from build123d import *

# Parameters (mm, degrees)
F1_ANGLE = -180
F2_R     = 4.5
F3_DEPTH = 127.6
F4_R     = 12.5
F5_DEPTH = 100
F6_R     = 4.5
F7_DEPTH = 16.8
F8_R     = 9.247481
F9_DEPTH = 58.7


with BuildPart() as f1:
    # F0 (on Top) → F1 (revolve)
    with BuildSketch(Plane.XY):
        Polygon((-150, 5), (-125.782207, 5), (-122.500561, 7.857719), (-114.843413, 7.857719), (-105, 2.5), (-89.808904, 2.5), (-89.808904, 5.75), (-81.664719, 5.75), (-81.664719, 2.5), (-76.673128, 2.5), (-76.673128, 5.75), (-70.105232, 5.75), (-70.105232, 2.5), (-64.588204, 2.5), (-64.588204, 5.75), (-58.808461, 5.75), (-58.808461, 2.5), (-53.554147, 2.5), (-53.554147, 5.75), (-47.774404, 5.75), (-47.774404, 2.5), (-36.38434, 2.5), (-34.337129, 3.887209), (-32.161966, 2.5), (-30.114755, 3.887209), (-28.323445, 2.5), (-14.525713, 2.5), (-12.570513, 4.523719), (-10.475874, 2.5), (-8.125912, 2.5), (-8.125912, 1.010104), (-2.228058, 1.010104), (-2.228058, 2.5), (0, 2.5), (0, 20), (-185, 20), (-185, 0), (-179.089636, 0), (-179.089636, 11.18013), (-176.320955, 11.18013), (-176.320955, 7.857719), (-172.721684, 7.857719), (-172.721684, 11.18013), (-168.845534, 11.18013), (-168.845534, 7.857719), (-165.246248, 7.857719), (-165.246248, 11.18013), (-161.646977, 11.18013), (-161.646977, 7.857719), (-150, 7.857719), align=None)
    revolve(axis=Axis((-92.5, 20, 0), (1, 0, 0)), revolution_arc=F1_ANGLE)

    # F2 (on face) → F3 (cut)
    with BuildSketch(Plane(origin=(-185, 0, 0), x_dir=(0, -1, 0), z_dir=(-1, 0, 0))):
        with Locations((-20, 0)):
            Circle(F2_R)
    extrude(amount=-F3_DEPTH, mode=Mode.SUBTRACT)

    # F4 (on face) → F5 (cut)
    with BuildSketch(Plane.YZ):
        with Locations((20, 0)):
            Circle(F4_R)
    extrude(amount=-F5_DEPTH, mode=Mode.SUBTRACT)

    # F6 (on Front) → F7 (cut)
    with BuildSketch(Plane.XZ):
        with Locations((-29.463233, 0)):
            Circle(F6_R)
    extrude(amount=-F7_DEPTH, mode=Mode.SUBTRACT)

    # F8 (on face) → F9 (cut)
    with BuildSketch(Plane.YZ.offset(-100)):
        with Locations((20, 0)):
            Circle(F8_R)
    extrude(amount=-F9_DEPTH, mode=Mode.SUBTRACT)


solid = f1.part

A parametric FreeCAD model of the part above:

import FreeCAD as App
import Part
import Sketcher
from FreeCAD import Vector
Q = App.Units.Quantity


def add_polygon(sketch, points):
    """Adds a closed chain of lines whose ends are joined by coincident constraints."""
    first, n = sketch.GeometryCount, len(points)
    for a, b in zip(points, points[1:] + points[:1]):
        sketch.addGeometry(Part.LineSegment(App.Vector(*a, 0), App.Vector(*b, 0)), False)
    for i in range(n):
        sketch.addConstraint(Sketcher.Constraint("Coincident", first + i, 2, first + (i + 1) % n, 1))

doc = App.newDocument("Part")
body = doc.addObject("PartDesign::Body", "Body")

# Sketch on XY plane
sketch1 = body.newObject("Sketcher::SketchObject", "Sketch")
sketch1.AttachmentSupport = (doc.getObject("XY_Plane"), [""])
sketch1.MapMode = "FlatFace"
add_polygon(sketch1, [(-150, 5), (-125.782207, 5), (-122.500561, 7.857719), (-114.843413, 7.857719), (-105, 2.5), (-89.808904, 2.5), (-89.808904, 5.75), (-81.664719, 5.75), (-81.664719, 2.5), (-76.673128, 2.5), (-76.673128, 5.75), (-70.105232, 5.75), (-70.105232, 2.5), (-64.588204, 2.5), (-64.588204, 5.75), (-58.808461, 5.75), (-58.808461, 2.5), (-53.554147, 2.5), (-53.554147, 5.75), (-47.774404, 5.75), (-47.774404, 2.5), (-36.38434, 2.5), (-34.337129, 3.887209), (-32.161966, 2.5), (-30.114755, 3.887209), (-28.323445, 2.5), (-14.525713, 2.5), (-12.570513, 4.523719), (-10.475874, 2.5), (-8.125912, 2.5), (-8.125912, 1.010104), (-2.228058, 1.010104), (-2.228058, 2.5), (0, 2.5), (0, 20), (-185, 20), (-185, 0), (-179.089636, 0), (-179.089636, 11.18013), (-176.320955, 11.18013), (-176.320955, 7.857719), (-172.721684, 7.857719), (-172.721684, 11.18013), (-168.845534, 11.18013), (-168.845534, 7.857719), (-165.246248, 7.857719), (-165.246248, 11.18013), (-161.646977, 11.18013), (-161.646977, 7.857719), (-150, 7.857719)])  # lines 0-49
sketch1.addGeometry(Part.LineSegment(Vector(-185, 20, 0), Vector(0, 20, 0)), True)  # axis
sketch1.addConstraint(Sketcher.Constraint("Horizontal", 0))
sketch1.addConstraint(Sketcher.Constraint("Horizontal", 2))
sketch1.addConstraint(Sketcher.Constraint("Horizontal", 4))
sketch1.addConstraint(Sketcher.Constraint("Vertical", 5))
sketch1.addConstraint(Sketcher.Constraint("Horizontal", 6))
sketch1.addConstraint(Sketcher.Constraint("Vertical", 7))
sketch1.addConstraint(Sketcher.Constraint("Horizontal", 8))
sketch1.addConstraint(Sketcher.Constraint("Vertical", 9))
sketch1.addConstraint(Sketcher.Constraint("Horizontal", 10))
sketch1.addConstraint(Sketcher.Constraint("Vertical", 11))
sketch1.addConstraint(Sketcher.Constraint("Horizontal", 12))
sketch1.addConstraint(Sketcher.Constraint("Vertical", 13))
sketch1.addConstraint(Sketcher.Constraint("Horizontal", 14))
sketch1.addConstraint(Sketcher.Constraint("Vertical", 15))
sketch1.addConstraint(Sketcher.Constraint("Horizontal", 16))
sketch1.addConstraint(Sketcher.Constraint("Vertical", 17))
sketch1.addConstraint(Sketcher.Constraint("Horizontal", 18))
sketch1.addConstraint(Sketcher.Constraint("Vertical", 19))
sketch1.addConstraint(Sketcher.Constraint("Horizontal", 20))
sketch1.addConstraint(Sketcher.Constraint("Horizontal", 25))
sketch1.addConstraint(Sketcher.Constraint("Horizontal", 28))
sketch1.addConstraint(Sketcher.Constraint("Vertical", 29))
sketch1.addConstraint(Sketcher.Constraint("Horizontal", 30))
sketch1.addConstraint(Sketcher.Constraint("Vertical", 31))
sketch1.addConstraint(Sketcher.Constraint("Horizontal", 32))
sketch1.addConstraint(Sketcher.Constraint("Vertical", 33))
sketch1.addConstraint(Sketcher.Constraint("Horizontal", 34))
sketch1.addConstraint(Sketcher.Constraint("Vertical", 35))
sketch1.addConstraint(Sketcher.Constraint("Horizontal", 36))
sketch1.addConstraint(Sketcher.Constraint("Vertical", 37))
sketch1.addConstraint(Sketcher.Constraint("Horizontal", 38))
sketch1.addConstraint(Sketcher.Constraint("Vertical", 39))
sketch1.addConstraint(Sketcher.Constraint("Horizontal", 40))
sketch1.addConstraint(Sketcher.Constraint("Vertical", 41))
sketch1.addConstraint(Sketcher.Constraint("Horizontal", 42))
sketch1.addConstraint(Sketcher.Constraint("Vertical", 43))
sketch1.addConstraint(Sketcher.Constraint("Horizontal", 44))
sketch1.addConstraint(Sketcher.Constraint("Vertical", 45))
sketch1.addConstraint(Sketcher.Constraint("Horizontal", 46))
sketch1.addConstraint(Sketcher.Constraint("Vertical", 47))
sketch1.addConstraint(Sketcher.Constraint("Horizontal", 48))
sketch1.addConstraint(Sketcher.Constraint("Vertical", 49))
sketch1.addConstraint(Sketcher.Constraint("Horizontal", 50))
sketch1.addConstraint(Sketcher.Constraint("Coincident", 50, 1, 34, 2))
sketch1.addConstraint(Sketcher.Constraint("PointOnObject", 32, 2, -2))
sketch1.addConstraint(Sketcher.Constraint("PointOnObject", 35, 2, -1))
sketch1.addConstraint(Sketcher.Constraint("PointOnObject", 50, 2, -2))
sketch1.addConstraint(Sketcher.Constraint("Parallel", 21, 23))
sketch1.addConstraint(Sketcher.Constraint("Perpendicular", 26, 27))
sketch1.addConstraint(Sketcher.Constraint("Horizontal", 4, 2, 7, 2))
sketch1.addConstraint(Sketcher.Constraint("Horizontal", 6, 2, 9, 2))
sketch1.addConstraint(Sketcher.Constraint("Horizontal", 8, 2, 11, 2))
sketch1.addConstraint(Sketcher.Constraint("Horizontal", 10, 2, 13, 2))
sketch1.addConstraint(Sketcher.Constraint("Horizontal", 12, 2, 15, 2))
sketch1.addConstraint(Sketcher.Constraint("Horizontal", 14, 2, 17, 2))
sketch1.addConstraint(Sketcher.Constraint("Horizontal", 16, 2, 19, 2))
sketch1.addConstraint(Sketcher.Constraint("Horizontal", 20, 2, 22, 2))
sketch1.addConstraint(Sketcher.Constraint("Horizontal", 21, 2, 23, 2))
sketch1.addConstraint(Sketcher.Constraint("Horizontal", 22, 2, 24, 2))
sketch1.addConstraint(Sketcher.Constraint("Horizontal", 25, 2, 27, 2))
sketch1.addConstraint(Sketcher.Constraint("Horizontal", 28, 2, 31, 2))
sketch1.addConstraint(Sketcher.Constraint("Horizontal", 2, 2, 39, 2))
sketch1.addConstraint(Sketcher.Constraint("Horizontal", 38, 2, 41, 2))
sketch1.addConstraint(Sketcher.Constraint("Horizontal", 40, 2, 43, 2))
sketch1.addConstraint(Sketcher.Constraint("Horizontal", 42, 2, 45, 2))
sketch1.addConstraint(Sketcher.Constraint("Horizontal", 44, 2, 47, 2))
sketch1.addConstraint(Sketcher.Constraint("Equal", 14, 18))
sketch1.addConstraint(Sketcher.Constraint("Equal", 40, 46))
sketch1.addConstraint(Sketcher.Constraint("DistanceX", 34, 2, 34, 1, Q("185 mm")))
sketch1.addConstraint(Sketcher.Constraint("DistanceY", 35, 2, 35, 1, Q("20 mm")))
sketch1.addConstraint(Sketcher.Constraint("DistanceY", 33, 1, 33, 2, Q("17.5 mm")))
sketch1.addConstraint(Sketcher.Constraint("DistanceY", -1, 1, 0, 2, Q("5 mm")))
sketch1.addConstraint(Sketcher.Constraint("DistanceX", 3, 2, -1, 1, Q("105 mm")))
sketch1.addConstraint(Sketcher.Constraint("DistanceX", 48, 2, -1, 1, Q("150 mm")))
sketch1.addConstraint(Sketcher.Constraint("DistanceY", 5, 1, 5, 2, Q("3.25 mm")))
sketch1.addConstraint(Sketcher.Constraint("DistanceX", 2, 1, 2, 2, Q("7.657148 mm")))
sketch1.addConstraint(Sketcher.Constraint("DistanceX", 8, 1, 8, 2, Q("4.991591 mm")))
sketch1.addConstraint(Sketcher.Constraint("DistanceX", 28, 1, 28, 2, Q("2.349962 mm")))
sketch1.addConstraint(Sketcher.Constraint("DistanceX", 38, 1, 38, 2, Q("2.768681 mm")))
sketch1.addConstraint(Sketcher.Constraint("DistanceX", 40, 1, 40, 2, Q("3.599271 mm")))
sketch1.addConstraint(Sketcher.Constraint("DistanceX", 42, 1, 42, 2, Q("3.87615 mm")))
sketch1.addConstraint(Sketcher.Constraint("DistanceY", 37, 1, 37, 2, Q("11.18013 mm")))
sketch1.addConstraint(Sketcher.Constraint("DistanceY", 39, 2, 39, 1, Q("3.322411 mm")))
sketch1.addConstraint(Sketcher.Constraint("DistanceX", 13, 2, 18, 2, Q("16.8138 mm")))
sketch1.addConstraint(Sketcher.Constraint("DistanceX", 25, 2, 26, 2, Q("1.9552 mm")))
sketch1.addConstraint(Sketcher.Constraint("DistanceX", 26, 2, 28, 2, Q("4.444601 mm")))
sketch1.addConstraint(Sketcher.Constraint("Distance", 3, Q("11.207048 mm")))
sketch1.addConstraint(Sketcher.Constraint("Distance", 22, Q("2.579861 mm")))
sketch1.addConstraint(Sketcher.Constraint("DistanceX", 0, 1, 0, 2, Q("24.217793 mm")))
sketch1.addConstraint(Sketcher.Constraint("DistanceX", 4, 1, 4, 2, Q("15.191096 mm")))
sketch1.addConstraint(Sketcher.Constraint("DistanceX", 6, 1, 6, 2, Q("8.144185 mm")))
sketch1.addConstraint(Sketcher.Constraint("DistanceX", 10, 1, 10, 2, Q("6.567896 mm")))
sketch1.addConstraint(Sketcher.Constraint("DistanceX", 12, 1, 12, 2, Q("5.517028 mm")))
sketch1.addConstraint(Sketcher.Constraint("DistanceX", 14, 1, 14, 2, Q("5.779743 mm")))
sketch1.addConstraint(Sketcher.Constraint("DistanceX", 20, 1, 20, 2, Q("11.390064 mm")))
sketch1.addConstraint(Sketcher.Constraint("DistanceX", 25, 1, 25, 2, Q("13.797732 mm")))
sketch1.addConstraint(Sketcher.Constraint("DistanceX", 30, 1, 30, 2, Q("5.897854 mm")))
sketch1.addConstraint(Sketcher.Constraint("DistanceX", 32, 1, 32, 2, Q("2.228058 mm")))
sketch1.addConstraint(Sketcher.Constraint("DistanceX", 36, 1, 36, 2, Q("5.910364 mm")))
sketch1.addConstraint(Sketcher.Constraint("DistanceX", 44, 1, 44, 2, Q("3.599286 mm")))
sketch1.addConstraint(Sketcher.Constraint("DistanceY", 29, 2, 29, 1, Q("1.489896 mm")))
sketch1.addConstraint(Sketcher.Constraint("DistanceX", 21, 2, -1, 1, Q("34.337129 mm")))
sketch1.addConstraint(Sketcher.Constraint("DistanceY", -1, 1, 21, 2, Q("3.887209 mm")))
revolution = body.newObject("PartDesign::Revolution", "Revolution")
revolution.Profile = sketch1
revolution.ReferenceAxis = (sketch1, ["Axis0"])
revolution.Angle = 180
revolution.Reversed = True

# Sketch on YZ plane
sketch2 = body.newObject("Sketcher::SketchObject", "Sketch001")
sketch2.AttachmentSupport = (doc.getObject("YZ_Plane"), [""])
sketch2.MapMode = "FlatFace"
sketch2.AttachmentOffset = App.Placement(Vector(0, 0, -185), App.Rotation())
sketch2.addGeometry(Part.Circle(Vector(20, 0, 0), Vector(0, 0, 1), 4.5), False)
sketch2.addConstraint(Sketcher.Constraint("PointOnObject", 0, 3, -1))
sketch2.addConstraint(Sketcher.Constraint("Diameter", 0, Q("9 mm")))
sketch2.addConstraint(Sketcher.Constraint("DistanceX", -1, 1, 0, 3, Q("20 mm")))
pocket1 = body.newObject("PartDesign::Pocket", "Pocket")
pocket1.Profile = sketch2
pocket1.Length = 127.6
pocket1.Reversed = True

# Sketch on YZ plane
sketch3 = body.newObject("Sketcher::SketchObject", "Sketch002")
sketch3.AttachmentSupport = (doc.getObject("YZ_Plane"), [""])
sketch3.MapMode = "FlatFace"
sketch3.addGeometry(Part.Circle(Vector(20, 0, 0), Vector(0, 0, 1), 12.5), False)
sketch3.addConstraint(Sketcher.Constraint("PointOnObject", 0, 3, -1))
sketch3.addConstraint(Sketcher.Constraint("Diameter", 0, Q("25 mm")))
sketch3.addConstraint(Sketcher.Constraint("DistanceX", -1, 1, 0, 3, Q("20 mm")))
pocket2 = body.newObject("PartDesign::Pocket", "Pocket001")
pocket2.Profile = sketch3
pocket2.Length = 100

# Sketch on XZ plane
sketch4 = body.newObject("Sketcher::SketchObject", "Sketch003")
sketch4.AttachmentSupport = (doc.getObject("XZ_Plane"), [""])
sketch4.MapMode = "FlatFace"
sketch4.addGeometry(Part.Circle(Vector(-29.463233, 0, 0), Vector(0, 0, 1), 4.5), False)
sketch4.addConstraint(Sketcher.Constraint("PointOnObject", 0, 3, -1))
sketch4.addConstraint(Sketcher.Constraint("Diameter", 0, Q("9 mm")))
sketch4.addConstraint(Sketcher.Constraint("DistanceX", 0, 3, -1, 1, Q("29.463233 mm")))
pocket3 = body.newObject("PartDesign::Pocket", "Pocket002")
pocket3.Profile = sketch4
pocket3.Length = 16.8

# Sketch on YZ plane
sketch5 = body.newObject("Sketcher::SketchObject", "Sketch004")
sketch5.AttachmentSupport = (doc.getObject("YZ_Plane"), [""])
sketch5.MapMode = "FlatFace"
sketch5.AttachmentOffset = App.Placement(Vector(0, 0, -100), App.Rotation())
sketch5.addGeometry(Part.Circle(Vector(20, 0, 0), Vector(0, 0, 1), 9.247481), False)
sketch5.addConstraint(Sketcher.Constraint("PointOnObject", 0, 3, -1))
sketch5.addConstraint(Sketcher.Constraint("DistanceX", -1, 1, 0, 3, Q("20 mm")))
sketch5.addConstraint(Sketcher.Constraint("Diameter", 0, Q("18.494962 mm")))
pocket4 = body.newObject("PartDesign::Pocket", "Pocket003")
pocket4.Profile = sketch5
pocket4.Length = 58.7

doc.recompute()
